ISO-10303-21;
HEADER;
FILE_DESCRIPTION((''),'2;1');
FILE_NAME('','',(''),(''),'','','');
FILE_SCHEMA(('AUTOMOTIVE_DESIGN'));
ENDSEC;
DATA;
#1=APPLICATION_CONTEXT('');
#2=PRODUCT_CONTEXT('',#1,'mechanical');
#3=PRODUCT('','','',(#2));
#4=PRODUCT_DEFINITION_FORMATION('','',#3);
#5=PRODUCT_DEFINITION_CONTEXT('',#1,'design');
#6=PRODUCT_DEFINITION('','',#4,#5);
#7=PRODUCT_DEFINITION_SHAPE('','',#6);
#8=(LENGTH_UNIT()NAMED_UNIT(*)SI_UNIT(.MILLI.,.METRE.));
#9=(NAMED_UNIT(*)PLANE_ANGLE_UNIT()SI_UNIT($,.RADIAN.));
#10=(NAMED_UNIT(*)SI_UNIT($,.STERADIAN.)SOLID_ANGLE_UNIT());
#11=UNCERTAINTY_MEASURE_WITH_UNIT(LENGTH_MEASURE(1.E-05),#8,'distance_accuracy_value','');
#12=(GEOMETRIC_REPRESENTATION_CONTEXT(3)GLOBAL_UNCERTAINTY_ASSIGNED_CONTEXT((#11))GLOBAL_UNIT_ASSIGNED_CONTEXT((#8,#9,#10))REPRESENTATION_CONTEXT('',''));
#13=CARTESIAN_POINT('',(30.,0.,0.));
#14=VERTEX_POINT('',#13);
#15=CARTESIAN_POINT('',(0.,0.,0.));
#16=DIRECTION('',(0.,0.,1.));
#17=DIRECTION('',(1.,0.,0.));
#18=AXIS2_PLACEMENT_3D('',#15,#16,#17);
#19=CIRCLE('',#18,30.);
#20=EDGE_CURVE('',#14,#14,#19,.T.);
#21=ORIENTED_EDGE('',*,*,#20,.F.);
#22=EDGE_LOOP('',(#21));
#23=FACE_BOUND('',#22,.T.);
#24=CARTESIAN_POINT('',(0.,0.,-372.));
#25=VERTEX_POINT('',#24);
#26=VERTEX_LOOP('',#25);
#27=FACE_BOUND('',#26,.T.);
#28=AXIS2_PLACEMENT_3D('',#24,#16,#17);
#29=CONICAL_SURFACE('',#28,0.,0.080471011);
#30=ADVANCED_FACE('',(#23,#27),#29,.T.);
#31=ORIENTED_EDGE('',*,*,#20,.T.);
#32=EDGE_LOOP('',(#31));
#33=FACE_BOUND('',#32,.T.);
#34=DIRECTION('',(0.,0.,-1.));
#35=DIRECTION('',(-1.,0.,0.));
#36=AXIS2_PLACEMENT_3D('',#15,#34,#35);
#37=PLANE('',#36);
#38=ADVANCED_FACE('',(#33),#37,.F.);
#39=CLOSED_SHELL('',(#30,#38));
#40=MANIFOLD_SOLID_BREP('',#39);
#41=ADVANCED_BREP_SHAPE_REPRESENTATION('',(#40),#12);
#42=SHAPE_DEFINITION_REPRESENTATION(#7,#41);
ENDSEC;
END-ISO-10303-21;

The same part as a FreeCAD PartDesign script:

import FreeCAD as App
import Part
import Sketcher
from FreeCAD import Vector
Q = App.Units.Quantity

doc = App.newDocument("Part")
body = doc.addObject("PartDesign::Body", "Body")

# Sketch on XZ plane
sketch1 = doc.addObject("Sketcher::SketchObject", "Sketch")
body.addObject(sketch1)
sketch1.AttachmentSupport = (doc.XZ_Plane, [""])
sketch1.MapMode = "FlatFace"
sketch1.addGeometry([
    Part.LineSegment(Vector(-30, 0, 0), Vector(0, 0, 0)),
    Part.LineSegment(Vector(0, 0, 0), Vector(0, -372, 0)),
    Part.LineSegment(Vector(0, -372, 0), Vector(-30, 0, 0)),
], False)
sketch1.addConstraint([
    Sketcher.Constraint("Coincident", 0, 2, 1, 1),
    Sketcher.Constraint("Coincident", 1, 2, 2, 1),
    Sketcher.Constraint("Coincident", 2, 2, 0, 1),
    Sketcher.Constraint("Horizontal", 0),
    Sketcher.Constraint("Vertical", 1),
    Sketcher.Constraint("Coincident", 0, 2, -1, 1),
    Sketcher.Constraint("DistanceX", 0, 1, 0, 2, Q("30 mm")),
    Sketcher.Constraint("DistanceY", 1, 2, 1, 1, Q("372 mm")),
])
revolution = doc.addObject("PartDesign::Revolution", "Revolution")
body.addObject(revolution)
revolution.Profile = sketch1
revolution.ReferenceAxis = (sketch1, ["V_Axis"])
revolution.Angle = 360

doc.recompute()
